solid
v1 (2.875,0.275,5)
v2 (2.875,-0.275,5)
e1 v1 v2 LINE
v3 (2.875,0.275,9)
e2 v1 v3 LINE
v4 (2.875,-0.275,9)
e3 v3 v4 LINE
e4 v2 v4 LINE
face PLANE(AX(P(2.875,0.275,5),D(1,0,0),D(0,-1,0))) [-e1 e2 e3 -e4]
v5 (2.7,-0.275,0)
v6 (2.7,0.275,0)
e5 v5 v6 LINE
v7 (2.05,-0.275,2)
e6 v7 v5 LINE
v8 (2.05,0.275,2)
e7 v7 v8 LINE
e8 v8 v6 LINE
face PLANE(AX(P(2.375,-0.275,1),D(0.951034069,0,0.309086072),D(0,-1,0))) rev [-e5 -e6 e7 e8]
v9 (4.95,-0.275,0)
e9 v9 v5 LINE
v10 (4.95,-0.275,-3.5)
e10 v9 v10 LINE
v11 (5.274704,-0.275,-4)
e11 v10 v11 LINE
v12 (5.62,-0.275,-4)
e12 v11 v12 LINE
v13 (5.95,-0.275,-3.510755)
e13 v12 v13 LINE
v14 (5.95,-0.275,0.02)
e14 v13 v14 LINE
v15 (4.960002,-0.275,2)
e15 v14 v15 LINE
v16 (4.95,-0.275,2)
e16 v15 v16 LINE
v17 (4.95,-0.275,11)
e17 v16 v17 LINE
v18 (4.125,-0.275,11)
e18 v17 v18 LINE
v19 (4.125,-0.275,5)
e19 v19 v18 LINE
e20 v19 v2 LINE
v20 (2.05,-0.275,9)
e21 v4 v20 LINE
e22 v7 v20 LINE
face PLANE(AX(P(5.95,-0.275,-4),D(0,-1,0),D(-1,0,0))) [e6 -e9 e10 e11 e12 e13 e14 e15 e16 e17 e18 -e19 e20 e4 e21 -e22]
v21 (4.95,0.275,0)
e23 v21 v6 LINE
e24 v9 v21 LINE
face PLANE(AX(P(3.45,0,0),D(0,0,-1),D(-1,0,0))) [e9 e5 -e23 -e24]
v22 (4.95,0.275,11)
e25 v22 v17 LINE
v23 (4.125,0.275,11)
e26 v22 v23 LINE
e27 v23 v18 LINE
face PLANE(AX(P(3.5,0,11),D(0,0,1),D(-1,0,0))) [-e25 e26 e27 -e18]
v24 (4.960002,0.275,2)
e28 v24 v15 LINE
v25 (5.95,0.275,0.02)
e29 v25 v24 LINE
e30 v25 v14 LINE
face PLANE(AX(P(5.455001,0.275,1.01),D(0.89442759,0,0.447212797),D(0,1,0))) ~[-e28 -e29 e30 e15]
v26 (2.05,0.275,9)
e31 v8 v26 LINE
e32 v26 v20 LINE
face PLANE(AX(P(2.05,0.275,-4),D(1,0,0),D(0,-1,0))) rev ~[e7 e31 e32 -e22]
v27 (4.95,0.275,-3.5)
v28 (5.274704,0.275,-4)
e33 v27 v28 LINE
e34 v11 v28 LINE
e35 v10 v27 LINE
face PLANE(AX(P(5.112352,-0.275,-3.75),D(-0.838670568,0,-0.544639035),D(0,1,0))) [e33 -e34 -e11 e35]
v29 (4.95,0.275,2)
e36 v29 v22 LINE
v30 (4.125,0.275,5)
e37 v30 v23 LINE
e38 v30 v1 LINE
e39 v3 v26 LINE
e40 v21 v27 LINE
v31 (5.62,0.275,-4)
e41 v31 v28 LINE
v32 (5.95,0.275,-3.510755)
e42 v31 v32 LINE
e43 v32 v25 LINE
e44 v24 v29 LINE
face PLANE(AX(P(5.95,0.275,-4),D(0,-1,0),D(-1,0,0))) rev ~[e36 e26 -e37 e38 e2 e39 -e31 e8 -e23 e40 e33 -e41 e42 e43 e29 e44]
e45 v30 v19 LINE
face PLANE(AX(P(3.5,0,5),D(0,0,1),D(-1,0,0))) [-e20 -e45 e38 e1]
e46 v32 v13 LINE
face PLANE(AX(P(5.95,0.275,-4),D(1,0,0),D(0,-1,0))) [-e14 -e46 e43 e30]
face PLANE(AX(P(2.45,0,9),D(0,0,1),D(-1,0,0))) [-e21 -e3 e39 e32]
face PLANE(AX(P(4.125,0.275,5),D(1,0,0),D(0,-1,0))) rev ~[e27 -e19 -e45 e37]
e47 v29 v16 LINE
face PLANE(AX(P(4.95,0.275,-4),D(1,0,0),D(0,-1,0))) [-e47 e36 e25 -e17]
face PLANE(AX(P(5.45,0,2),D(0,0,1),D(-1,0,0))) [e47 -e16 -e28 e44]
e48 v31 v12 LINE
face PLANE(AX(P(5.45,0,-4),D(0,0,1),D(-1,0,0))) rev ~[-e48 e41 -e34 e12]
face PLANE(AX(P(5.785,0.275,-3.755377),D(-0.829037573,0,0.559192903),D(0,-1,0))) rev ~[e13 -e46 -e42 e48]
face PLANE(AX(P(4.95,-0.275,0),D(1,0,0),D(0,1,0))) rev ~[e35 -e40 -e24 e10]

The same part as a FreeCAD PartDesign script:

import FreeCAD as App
import Part
import Sketcher
from FreeCAD import Vector
Q = App.Units.Quantity


def edges_at(feature, points):
    """Names of the edges that pass closest to the given points."""
    edges = feature.Shape.Edges
    near = lambda p: min(range(len(edges)), key=lambda i: edges[i].distToShape(Part.Vertex(*p))[0])
    return sorted({f"Edge{near(p) + 1}" for p in points})

doc = App.newDocument("Part")
body = doc.addObject("PartDesign::Body", "Body")

# Sketch on XY plane
sketch1 = body.newObject("Sketcher::SketchObject", "Sketch")
sketch1.AttachmentSupport = (doc.getObject("XY_Plane"), [""])
sketch1.MapMode = "FlatFace"
sketch1.addGeometry([
    Part.LineSegment(Vector(-4.95, 0.275, 0), Vector(-4.95, -0.275, 0)),
    Part.LineSegment(Vector(-4.95, -0.275, 0), Vector(-2.05, -0.275, 0)),
    Part.LineSegment(Vector(-2.05, -0.275, 0), Vector(-2.05, 0.275, 0)),
    Part.LineSegment(Vector(-2.05, 0.275, 0), Vector(-4.95, 0.275, 0)),
], False)
sketch1.addConstraint([
    Sketcher.Constraint("Coincident", 0, 2, 1, 1),
    Sketcher.Constraint("Coincident", 1, 2, 2, 1),
    Sketcher.Constraint("Coincident", 2, 2, 3, 1),
    Sketcher.Constraint("Coincident", 3, 2, 0, 1),
    Sketcher.Constraint("Vertical", 0),
    Sketcher.Constraint("Horizontal", 1),
    Sketcher.Constraint("Vertical", 2),
    Sketcher.Constraint("Horizontal", 3),
    Sketcher.Constraint("DistanceX", 1, 1, 1, 2, Q("2.9 mm")),
    Sketcher.Constraint("DistanceY", 0, 2, 0, 1, Q("0.55 mm")),
    Sketcher.Constraint("DistanceX", 0, 2, -1, 1, Q("4.95 mm")),
    Sketcher.Constraint("DistanceY", 0, 2, -1, 1, Q("0.275 mm")),
])
pad1 = body.newObject("PartDesign::Pad", "Pad")
pad1.Profile = sketch1
pad1.Length = 15

# Sketch on XY plane
sketch2 = body.newObject("Sketcher::SketchObject", "Sketch001")
sketch2.AttachmentSupport = (doc.getObject("XY_Plane"), [""])
sketch2.MapMode = "FlatFace"
sketch2.AttachmentOffset = App.Placement(Vector(0, 0, 9), App.Rotation())
sketch2.addGeometry([
    Part.LineSegment(Vector(-4.125, 0.275, 0), Vector(-4.125, -0.275, 0)),
    Part.LineSegment(Vector(-4.125, -0.275, 0), Vector(-2.875, -0.275, 0)),
    Part.LineSegment(Vector(-2.875, -0.275, 0), Vector(-2.875, 0.275, 0)),
    Part.LineSegment(Vector(-2.875, 0.275, 0), Vector(-4.125, 0.275, 0)),
], False)
sketch2.addConstraint([
    Sketcher.Constraint("Coincident", 0, 2, 1, 1),
    Sketcher.Constraint("Coincident", 1, 2, 2, 1),
    Sketcher.Constraint("Coincident", 2, 2, 3, 1),
    Sketcher.Constraint("Coincident", 3, 2, 0, 1),
    Sketcher.Constraint("Vertical", 0),
    Sketcher.Constraint("Horizontal", 1),
    Sketcher.Constraint("Vertical", 2),
    Sketcher.Constraint("Horizontal", 3),
    Sketcher.Constraint("DistanceX", 1, 1, 1, 2, Q("1.25 mm")),
    Sketcher.Constraint("DistanceY", 0, 2, 0, 1, Q("0.55 mm")),
    Sketcher.Constraint("DistanceX", 0, 2, -1, 1, Q("4.125 mm")),
    Sketcher.Constraint("DistanceY", 0, 2, -1, 1, Q("0.275 mm")),
])
pocket1 = body.newObject("PartDesign::Pocket", "Pocket")
pocket1.Profile = sketch2
pocket1.Length = 6
pocket1.Reversed = True

# Sketch on XY plane
sketch3 = body.newObject("Sketcher::SketchObject", "Sketch002")
sketch3.AttachmentSupport = (doc.getObject("XY_Plane"), [""])
sketch3.MapMode = "FlatFace"
sketch3.AttachmentOffset = App.Placement(Vector(0, 0, 13), App.Rotation())
sketch3.addGeometry([
    Part.LineSegment(Vector(-3, 0.3, 0), Vector(-3, -0.3, 0)),
    Part.LineSegment(Vector(-3, -0.3, 0), Vector(-1.9, -0.3, 0)),
    Part.LineSegment(Vector(-1.9, -0.3, 0), Vector(-1.9, 0.3, 0)),
    Part.LineSegment(Vector(-1.9, 0.3, 0), Vector(-3, 0.3, 0)),
], False)
sketch3.addConstraint([
    Sketcher.Constraint("Coincident", 0, 2, 1, 1),
    Sketcher.Constraint("Coincident", 1, 2, 2, 1),
    Sketcher.Constraint("Coincident", 2, 2, 3, 1),
    Sketcher.Constraint("Coincident", 3, 2, 0, 1),
    Sketcher.Constraint("Vertical", 0),
    Sketcher.Constraint("Horizontal", 1),
    Sketcher.Constraint("Vertical", 2),
    Sketcher.Constraint("Horizontal", 3),
    Sketcher.Constraint("DistanceX", 1, 1, 1, 2, Q("1.1 mm")),
    Sketcher.Constraint("DistanceY", 0, 2, 0, 1, Q("0.6 mm")),
    Sketcher.Constraint("DistanceX", 0, 2, -1, 1, Q("3 mm")),
    Sketcher.Constraint("DistanceY", 0, 2, -1, 1, Q("0.3 mm")),
])
pocket2 = body.newObject("PartDesign::Pocket", "Pocket001")
pocket2.Profile = sketch3
pocket2.Length = 2
pocket2.Reversed = True

# Sketch on XY plane
sketch4 = body.newObject("Sketcher::SketchObject", "Sketch003")
sketch4.AttachmentSupport = (doc.getObject("XY_Plane"), [""])
sketch4.MapMode = "FlatFace"
sketch4.addGeometry([
    Part.LineSegment(Vector(-5.95, 0.275, 0), Vector(-5.95, -0.275, 0)),
    Part.LineSegment(Vector(-5.95, -0.275, 0), Vector(-4.95, -0.275, 0)),
    Part.LineSegment(Vector(-4.95, -0.275, 0), Vector(-4.95, 0.275, 0)),
    Part.LineSegment(Vector(-4.95, 0.275, 0), Vector(-5.95, 0.275, 0)),
], False)
sketch4.addConstraint([
    Sketcher.Constraint("Coincident", 0, 2, 1, 1),
    Sketcher.Constraint("Coincident", 1, 2, 2, 1),
    Sketcher.Constraint("Coincident", 2, 2, 3, 1),
    Sketcher.Constraint("Coincident", 3, 2, 0, 1),
    Sketcher.Constraint("Vertical", 0),
    Sketcher.Constraint("Horizontal", 1),
    Sketcher.Constraint("Vertical", 2),
    Sketcher.Constraint("Horizontal", 3),
    Sketcher.Constraint("DistanceX", 1, 1, 1, 2, Q("1 mm")),
    Sketcher.Constraint("DistanceY", 0, 2, 0, 1, Q("0.55 mm")),
    Sketcher.Constraint("DistanceX", 0, 2, -1, 1, Q("5.95 mm")),
    Sketcher.Constraint("DistanceY", 0, 2, -1, 1, Q("0.275 mm")),
])
pad2 = body.newObject("PartDesign::Pad", "Pad001")
pad2.Profile = sketch4
pad2.Length = 6

# Sketch on XY plane
sketch5 = body.newObject("Sketcher::SketchObject", "Sketch004")
sketch5.AttachmentSupport = (doc.getObject("XY_Plane"), [""])
sketch5.MapMode = "FlatFace"
sketch5.AttachmentOffset = App.Placement(Vector(0, 0, 4), App.Rotation())
sketch5.addGeometry([
    Part.LineSegment(Vector(-4.95, -0.275, 0), Vector(-4.95, 0.275, 0)),
    Part.LineSegment(Vector(-4.95, 0.275, 0), Vector(-1.95, 0.275, 0)),
    Part.LineSegment(Vector(-1.95, 0.275, 0), Vector(-1.95, -0.275, 0)),
    Part.LineSegment(Vector(-1.95, -0.275, 0), Vector(-4.95, -0.275, 0)),
], False)
sketch5.addConstraint([
    Sketcher.Constraint("Coincident", 0, 2, 1, 1),
    Sketcher.Constraint("Coincident", 1, 2, 2, 1),
    Sketcher.Constraint("Coincident", 2, 2, 3, 1),
    Sketcher.Constraint("Coincident", 3, 2, 0, 1),
    Sketcher.Constraint("Vertical", 0),
    Sketcher.Constraint("Horizontal", 1),
    Sketcher.Constraint("Vertical", 2),
    Sketcher.Constraint("Horizontal", 3),
    Sketcher.Constraint("DistanceX", 1, 1, 1, 2, Q("3 mm")),
    Sketcher.Constraint("DistanceY", 0, 1, 0, 2, Q("0.55 mm")),
    Sketcher.Constraint("DistanceX", 0, 2, -1, 1, Q("4.95 mm")),
    Sketcher.Constraint("DistanceY", -1, 1, 0, 2, Q("0.275 mm")),
])
pocket3 = body.newObject("PartDesign::Pocket", "Pocket002")
pocket3.Profile = sketch5
pocket3.Length = 4
doc.recompute()

chamfer = body.newObject("PartDesign::Chamfer", "Chamfer")
chamfer.Base = (pocket3, edges_at(pocket3, [(-2.05, 0, 4)]))
chamfer.ChamferType = "Two distances"
chamfer.Size = 2
chamfer.Size2 = 0.65
doc.recompute()

chamfer2 = body.newObject("PartDesign::Chamfer", "Chamfer001")
chamfer2.Base = (chamfer, edges_at(chamfer, [(-4.95, 0, 0)]))
chamfer2.ChamferType = "Distance and Angle"
chamfer2.Size = 0.5
chamfer2.Angle = 33
doc.recompute()

chamfer3 = body.newObject("PartDesign::Chamfer", "Chamfer002")
chamfer3.Base = (chamfer2, edges_at(chamfer2, [(-5.95, 0, 0)]))
chamfer3.ChamferType = "Distance and Angle"
chamfer3.Size = 0.33
chamfer3.Angle = 56
doc.recompute()

chamfer4 = body.newObject("PartDesign::Chamfer", "Chamfer003")
chamfer4.Base = (chamfer3, edges_at(chamfer3, [(-5.95, 0, 6)]))
chamfer4.ChamferType = "Distance and Angle"
chamfer4.Size = 1.98
chamfer4.Angle = 26.565
body2 = doc.addObject("PartDesign::Body", "Body001")
doc.recompute()

body.Placement = App.Placement(Vector(0, 0, -4), App.Rotation(Vector(0, 0, 1), 180))
boolean = body2.newObject("PartDesign::Boolean", "Boolean")
boolean.Type = "Fuse"
boolean.addObjects([body])

doc.recompute()
